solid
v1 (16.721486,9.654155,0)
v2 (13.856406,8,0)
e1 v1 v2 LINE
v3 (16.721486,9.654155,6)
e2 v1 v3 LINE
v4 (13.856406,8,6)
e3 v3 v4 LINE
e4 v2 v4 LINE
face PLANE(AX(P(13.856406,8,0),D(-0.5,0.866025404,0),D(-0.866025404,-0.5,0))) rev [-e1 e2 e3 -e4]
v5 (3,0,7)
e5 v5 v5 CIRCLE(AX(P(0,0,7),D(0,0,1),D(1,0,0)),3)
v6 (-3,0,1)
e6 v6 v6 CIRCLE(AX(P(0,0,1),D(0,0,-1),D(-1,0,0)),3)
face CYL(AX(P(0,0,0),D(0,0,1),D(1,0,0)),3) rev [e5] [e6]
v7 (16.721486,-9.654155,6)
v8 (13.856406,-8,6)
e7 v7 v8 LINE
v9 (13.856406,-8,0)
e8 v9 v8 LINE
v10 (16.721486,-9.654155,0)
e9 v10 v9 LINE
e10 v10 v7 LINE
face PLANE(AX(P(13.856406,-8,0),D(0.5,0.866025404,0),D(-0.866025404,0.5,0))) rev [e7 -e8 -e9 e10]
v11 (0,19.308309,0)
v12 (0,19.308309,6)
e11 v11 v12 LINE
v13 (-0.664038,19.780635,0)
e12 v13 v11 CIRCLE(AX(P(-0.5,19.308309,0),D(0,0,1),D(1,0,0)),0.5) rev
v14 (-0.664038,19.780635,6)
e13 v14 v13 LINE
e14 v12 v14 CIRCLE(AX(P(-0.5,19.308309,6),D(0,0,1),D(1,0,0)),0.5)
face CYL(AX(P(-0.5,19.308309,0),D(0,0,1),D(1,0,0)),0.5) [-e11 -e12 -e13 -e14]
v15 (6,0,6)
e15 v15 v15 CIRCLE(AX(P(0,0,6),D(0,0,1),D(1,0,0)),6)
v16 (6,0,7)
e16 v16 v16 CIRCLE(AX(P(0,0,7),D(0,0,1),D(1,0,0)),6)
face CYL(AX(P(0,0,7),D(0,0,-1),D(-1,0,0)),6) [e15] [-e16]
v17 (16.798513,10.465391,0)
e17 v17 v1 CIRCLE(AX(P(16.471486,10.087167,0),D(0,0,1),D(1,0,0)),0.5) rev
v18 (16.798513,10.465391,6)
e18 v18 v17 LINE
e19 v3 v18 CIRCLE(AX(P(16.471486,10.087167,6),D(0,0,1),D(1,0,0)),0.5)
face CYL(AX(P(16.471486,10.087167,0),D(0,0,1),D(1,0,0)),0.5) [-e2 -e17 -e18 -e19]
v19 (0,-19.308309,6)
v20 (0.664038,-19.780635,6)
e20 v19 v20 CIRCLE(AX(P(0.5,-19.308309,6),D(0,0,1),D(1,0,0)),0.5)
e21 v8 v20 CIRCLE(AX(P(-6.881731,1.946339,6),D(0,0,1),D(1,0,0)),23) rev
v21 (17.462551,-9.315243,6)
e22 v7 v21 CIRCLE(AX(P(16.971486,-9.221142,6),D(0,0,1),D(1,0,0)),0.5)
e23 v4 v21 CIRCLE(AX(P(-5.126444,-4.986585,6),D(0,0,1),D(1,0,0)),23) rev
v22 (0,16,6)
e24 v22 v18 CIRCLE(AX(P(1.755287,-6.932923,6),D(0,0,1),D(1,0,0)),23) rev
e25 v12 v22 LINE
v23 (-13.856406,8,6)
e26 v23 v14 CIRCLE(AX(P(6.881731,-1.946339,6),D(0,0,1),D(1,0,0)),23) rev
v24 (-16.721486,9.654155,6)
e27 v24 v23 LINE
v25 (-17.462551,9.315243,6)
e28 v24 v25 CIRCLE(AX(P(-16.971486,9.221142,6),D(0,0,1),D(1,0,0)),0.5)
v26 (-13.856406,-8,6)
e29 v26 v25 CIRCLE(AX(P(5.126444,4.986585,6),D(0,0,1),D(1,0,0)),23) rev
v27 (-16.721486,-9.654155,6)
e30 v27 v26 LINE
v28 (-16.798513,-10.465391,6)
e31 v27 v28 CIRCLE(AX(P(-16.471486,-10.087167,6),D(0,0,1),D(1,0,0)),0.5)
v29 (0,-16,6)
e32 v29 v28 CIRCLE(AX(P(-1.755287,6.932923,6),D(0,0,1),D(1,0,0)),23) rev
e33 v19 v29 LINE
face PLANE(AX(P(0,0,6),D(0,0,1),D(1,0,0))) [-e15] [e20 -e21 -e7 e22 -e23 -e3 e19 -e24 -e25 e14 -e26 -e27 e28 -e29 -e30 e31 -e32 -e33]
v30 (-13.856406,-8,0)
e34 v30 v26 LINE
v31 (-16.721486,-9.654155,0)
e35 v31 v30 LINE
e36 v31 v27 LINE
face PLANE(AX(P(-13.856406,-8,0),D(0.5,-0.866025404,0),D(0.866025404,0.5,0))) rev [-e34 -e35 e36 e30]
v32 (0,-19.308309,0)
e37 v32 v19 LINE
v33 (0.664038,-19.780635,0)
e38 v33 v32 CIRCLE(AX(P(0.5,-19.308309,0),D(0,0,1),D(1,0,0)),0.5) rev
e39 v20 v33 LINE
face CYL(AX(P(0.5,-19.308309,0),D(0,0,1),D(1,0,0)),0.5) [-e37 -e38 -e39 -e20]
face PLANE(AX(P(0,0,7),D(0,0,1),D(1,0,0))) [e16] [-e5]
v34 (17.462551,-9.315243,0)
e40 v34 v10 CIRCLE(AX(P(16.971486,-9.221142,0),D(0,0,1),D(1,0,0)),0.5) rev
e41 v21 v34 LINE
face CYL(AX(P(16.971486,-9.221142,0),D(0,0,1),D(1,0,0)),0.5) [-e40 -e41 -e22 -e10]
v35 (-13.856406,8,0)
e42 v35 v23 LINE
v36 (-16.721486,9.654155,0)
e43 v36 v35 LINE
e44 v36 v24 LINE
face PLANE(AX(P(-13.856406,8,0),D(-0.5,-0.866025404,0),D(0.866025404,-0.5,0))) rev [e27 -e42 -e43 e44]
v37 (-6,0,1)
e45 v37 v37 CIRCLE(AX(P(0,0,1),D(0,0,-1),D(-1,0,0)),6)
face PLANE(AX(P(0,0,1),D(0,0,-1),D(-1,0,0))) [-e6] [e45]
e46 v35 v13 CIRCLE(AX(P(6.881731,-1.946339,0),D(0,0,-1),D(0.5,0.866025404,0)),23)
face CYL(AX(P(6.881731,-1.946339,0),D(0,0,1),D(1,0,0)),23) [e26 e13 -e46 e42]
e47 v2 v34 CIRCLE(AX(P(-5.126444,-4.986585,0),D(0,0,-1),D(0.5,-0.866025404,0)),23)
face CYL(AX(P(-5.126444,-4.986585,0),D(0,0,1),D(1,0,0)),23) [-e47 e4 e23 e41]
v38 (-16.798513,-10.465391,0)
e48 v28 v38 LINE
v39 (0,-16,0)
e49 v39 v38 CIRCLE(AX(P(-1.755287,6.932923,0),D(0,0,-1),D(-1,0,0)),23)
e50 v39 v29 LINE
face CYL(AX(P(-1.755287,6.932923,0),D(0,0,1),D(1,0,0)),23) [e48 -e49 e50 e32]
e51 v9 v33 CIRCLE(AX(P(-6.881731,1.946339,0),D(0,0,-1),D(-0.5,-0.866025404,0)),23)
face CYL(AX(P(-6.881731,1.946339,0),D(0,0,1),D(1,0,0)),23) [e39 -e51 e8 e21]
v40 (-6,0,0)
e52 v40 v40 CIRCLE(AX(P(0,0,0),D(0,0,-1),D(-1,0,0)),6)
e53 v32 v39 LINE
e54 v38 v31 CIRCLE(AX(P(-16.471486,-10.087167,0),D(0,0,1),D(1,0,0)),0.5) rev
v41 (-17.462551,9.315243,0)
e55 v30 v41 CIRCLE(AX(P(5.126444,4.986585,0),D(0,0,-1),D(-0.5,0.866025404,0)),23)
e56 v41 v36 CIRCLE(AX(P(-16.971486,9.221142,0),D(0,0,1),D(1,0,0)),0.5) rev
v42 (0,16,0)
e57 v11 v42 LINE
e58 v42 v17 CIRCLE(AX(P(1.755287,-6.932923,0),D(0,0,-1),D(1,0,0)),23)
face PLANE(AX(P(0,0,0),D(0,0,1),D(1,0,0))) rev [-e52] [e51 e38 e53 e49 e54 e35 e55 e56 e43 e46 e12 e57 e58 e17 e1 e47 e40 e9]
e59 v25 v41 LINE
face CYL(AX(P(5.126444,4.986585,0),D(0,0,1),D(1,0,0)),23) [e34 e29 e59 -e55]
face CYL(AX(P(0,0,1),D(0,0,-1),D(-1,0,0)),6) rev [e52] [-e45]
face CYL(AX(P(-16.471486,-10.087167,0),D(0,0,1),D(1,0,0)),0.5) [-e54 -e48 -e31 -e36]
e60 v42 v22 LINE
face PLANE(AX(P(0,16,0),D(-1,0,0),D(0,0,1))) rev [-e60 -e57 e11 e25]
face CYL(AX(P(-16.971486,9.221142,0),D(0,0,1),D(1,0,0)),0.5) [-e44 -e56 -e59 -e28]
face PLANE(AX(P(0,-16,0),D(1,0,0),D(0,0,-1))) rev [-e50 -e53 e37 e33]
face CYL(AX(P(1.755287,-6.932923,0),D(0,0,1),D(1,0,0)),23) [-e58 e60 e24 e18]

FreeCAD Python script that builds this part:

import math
import FreeCAD as App
import Part
import Sketcher

V = App.Vector


def edges_at(feature, points):
    """Names of the edges that pass closest to the given points."""
    edges = feature.Shape.Edges
    near = lambda p: min(range(len(edges)), key=lambda i: edges[i].distToShape(Part.Vertex(*p))[0])
    return sorted({f"Edge{near(p) + 1}" for p in points})

doc = App.newDocument("Part")
body = doc.addObject("PartDesign::Body", "Body")

# Sketch on XY plane
sketch1 = body.newObject("Sketcher::SketchObject", "Sketch")
sketch1.AttachmentSupport = (doc.getObject("XY_Plane"), [""])
sketch1.MapMode = "FlatFace"
sketch1.addGeometry(Part.Circle(V(0, 0, 0), V(0, 0, 1), 20), False)
sketch1.addConstraint([
    Sketcher.Constraint("Coincident", 0, 3, -1, 1),
    Sketcher.Constraint("Diameter", 0, 40.0),
])
pad1 = body.newObject("PartDesign::Pad", "Pad")
pad1.Profile = sketch1
pad1.Length = 6

# Sketch on XY plane
sketch2 = body.newObject("Sketcher::SketchObject", "Sketch001")
sketch2.AttachmentSupport = (doc.getObject("XY_Plane"), [""])
sketch2.MapMode = "FlatFace"
sketch2.AttachmentOffset = App.Placement(V(0, 0, 6), App.Rotation())
sketch2.addGeometry([
    Part.LineSegment(V(0, 20, 0), V(0, 16, 0)),
    Part.ArcOfCircle(Part.Circle(V(1.755287, -6.932923, 0), V(0, 0, 1), 23), math.radians(47.409902), math.radians(94.376887)),
    Part.ArcOfCircle(Part.Circle(V(0, 0, 0), V(0, 0, 1), 20), math.radians(30), math.radians(90)),
], False)
sketch2.addConstraint([
    Sketcher.Constraint("Coincident", 0, 2, 1, 2),
    Sketcher.Constraint("Coincident", 1, 1, 2, 1),
    Sketcher.Constraint("Coincident", 2, 2, 0, 1),
    Sketcher.Constraint("Vertical", 0),
    Sketcher.Constraint("Coincident", 2, 3, -1, 1),
    Sketcher.Constraint("PointOnObject", 0, 2, -2),
    Sketcher.Constraint("Radius", 1, 23.0),
    Sketcher.Constraint("Radius", 2, 20.0),
    Sketcher.Constraint("DistanceY", 0, 2, 0, 1, 4.0),
    Sketcher.Constraint("DistanceY", -1, 1, 1, 1, 10.0),
])
pocket1 = body.newObject("PartDesign::Pocket", "Pocket")
pocket1.Profile = sketch2
pocket1.Length = 59.827329
pocket1.Midplane = True
doc.recompute()

polarpattern = body.newObject("PartDesign::PolarPattern", "PolarPattern")
polarpattern.Originals = [pocket1]
polarpattern.Axis = (doc.getObject("Z_Axis"), [""])
polarpattern.Angle = 360
polarpattern.Occurrences = 6
body.Tip = polarpattern
doc.recompute()

fillet = body.newObject("PartDesign::Fillet", "Fillet")
fillet.Base = (polarpattern, edges_at(polarpattern, [
    (17.321, 10, 3),
    (0, 20, 3),
    (-17.321, 10, 3),
    (0, -20, 3),
    (-17.321, -10, 3),
    (17.321, -10, 3),
]))
fillet.Radius = 0.5

# Sketch on XY plane
sketch3 = body.newObject("Sketcher::SketchObject", "Sketch002")
sketch3.AttachmentSupport = (doc.getObject("XY_Plane"), [""])
sketch3.MapMode = "FlatFace"
sketch3.addGeometry(Part.Circle(V(0, 0, 0), V(0, 0, 1), 6.014638), False)
sketch3.addConstraint([
    Sketcher.Constraint("Coincident", 0, 3, -1, 1),
    Sketcher.Constraint("Diameter", 0, 12.029277),
])
pad2 = body.newObject("PartDesign::Pad", "Pad001")
pad2.Profile = sketch3
pad2.Length = 1

# Sketch on XY plane
sketch4 = body.newObject("Sketcher::SketchObject", "Sketch003")
sketch4.AttachmentSupport = (doc.getObject("XY_Plane"), [""])
sketch4.MapMode = "FlatFace"
sketch4.AttachmentOffset = App.Placement(V(0, 0, 6), App.Rotation())
sketch4.addGeometry(Part.Circle(V(0, 0, 0), V(0, 0, 1), 6), False)
sketch4.addConstraint([
    Sketcher.Constraint("Coincident", 0, 3, -1, 1),
    Sketcher.Constraint("Diameter", 0, 12.0),
])
pad3 = body.newObject("PartDesign::Pad", "Pad002")
pad3.Profile = sketch4
pad3.Length = 1

# Sketch on XY plane
sketch5 = body.newObject("Sketcher::SketchObject", "Sketch004")
sketch5.AttachmentSupport = (doc.getObject("XY_Plane"), [""])
sketch5.MapMode = "FlatFace"
sketch5.addGeometry(Part.Circle(V(0, 0, 0), V(0, 0, 1), 6), False)
sketch5.addConstraint([
    Sketcher.Constraint("Coincident", 0, 3, -1, 1),
    Sketcher.Constraint("Diameter", 0, 12.0),
])
pocket2 = body.newObject("PartDesign::Pocket", "Pocket001")
pocket2.Profile = sketch5
pocket2.Length = 1
pocket2.Reversed = True

# Sketch on XY plane
sketch6 = body.newObject("Sketcher::SketchObject", "Sketch005")
sketch6.AttachmentSupport = (doc.getObject("XY_Plane"), [""])
sketch6.MapMode = "FlatFace"
sketch6.AttachmentOffset = App.Placement(V(0, 0, 7), App.Rotation())
sketch6.addGeometry(Part.Circle(V(0, 0, 0), V(0, 0, 1), 3), False)
sketch6.addConstraint([
    Sketcher.Constraint("Coincident", 0, 3, -1, 1),
    Sketcher.Constraint("Diameter", 0, 6.0),
])
pocket3 = body.newObject("PartDesign::Pocket", "Pocket002")
pocket3.Profile = sketch6
pocket3.Type = "ThroughAll"
pocket3.Midplane = True

doc.recompute()
